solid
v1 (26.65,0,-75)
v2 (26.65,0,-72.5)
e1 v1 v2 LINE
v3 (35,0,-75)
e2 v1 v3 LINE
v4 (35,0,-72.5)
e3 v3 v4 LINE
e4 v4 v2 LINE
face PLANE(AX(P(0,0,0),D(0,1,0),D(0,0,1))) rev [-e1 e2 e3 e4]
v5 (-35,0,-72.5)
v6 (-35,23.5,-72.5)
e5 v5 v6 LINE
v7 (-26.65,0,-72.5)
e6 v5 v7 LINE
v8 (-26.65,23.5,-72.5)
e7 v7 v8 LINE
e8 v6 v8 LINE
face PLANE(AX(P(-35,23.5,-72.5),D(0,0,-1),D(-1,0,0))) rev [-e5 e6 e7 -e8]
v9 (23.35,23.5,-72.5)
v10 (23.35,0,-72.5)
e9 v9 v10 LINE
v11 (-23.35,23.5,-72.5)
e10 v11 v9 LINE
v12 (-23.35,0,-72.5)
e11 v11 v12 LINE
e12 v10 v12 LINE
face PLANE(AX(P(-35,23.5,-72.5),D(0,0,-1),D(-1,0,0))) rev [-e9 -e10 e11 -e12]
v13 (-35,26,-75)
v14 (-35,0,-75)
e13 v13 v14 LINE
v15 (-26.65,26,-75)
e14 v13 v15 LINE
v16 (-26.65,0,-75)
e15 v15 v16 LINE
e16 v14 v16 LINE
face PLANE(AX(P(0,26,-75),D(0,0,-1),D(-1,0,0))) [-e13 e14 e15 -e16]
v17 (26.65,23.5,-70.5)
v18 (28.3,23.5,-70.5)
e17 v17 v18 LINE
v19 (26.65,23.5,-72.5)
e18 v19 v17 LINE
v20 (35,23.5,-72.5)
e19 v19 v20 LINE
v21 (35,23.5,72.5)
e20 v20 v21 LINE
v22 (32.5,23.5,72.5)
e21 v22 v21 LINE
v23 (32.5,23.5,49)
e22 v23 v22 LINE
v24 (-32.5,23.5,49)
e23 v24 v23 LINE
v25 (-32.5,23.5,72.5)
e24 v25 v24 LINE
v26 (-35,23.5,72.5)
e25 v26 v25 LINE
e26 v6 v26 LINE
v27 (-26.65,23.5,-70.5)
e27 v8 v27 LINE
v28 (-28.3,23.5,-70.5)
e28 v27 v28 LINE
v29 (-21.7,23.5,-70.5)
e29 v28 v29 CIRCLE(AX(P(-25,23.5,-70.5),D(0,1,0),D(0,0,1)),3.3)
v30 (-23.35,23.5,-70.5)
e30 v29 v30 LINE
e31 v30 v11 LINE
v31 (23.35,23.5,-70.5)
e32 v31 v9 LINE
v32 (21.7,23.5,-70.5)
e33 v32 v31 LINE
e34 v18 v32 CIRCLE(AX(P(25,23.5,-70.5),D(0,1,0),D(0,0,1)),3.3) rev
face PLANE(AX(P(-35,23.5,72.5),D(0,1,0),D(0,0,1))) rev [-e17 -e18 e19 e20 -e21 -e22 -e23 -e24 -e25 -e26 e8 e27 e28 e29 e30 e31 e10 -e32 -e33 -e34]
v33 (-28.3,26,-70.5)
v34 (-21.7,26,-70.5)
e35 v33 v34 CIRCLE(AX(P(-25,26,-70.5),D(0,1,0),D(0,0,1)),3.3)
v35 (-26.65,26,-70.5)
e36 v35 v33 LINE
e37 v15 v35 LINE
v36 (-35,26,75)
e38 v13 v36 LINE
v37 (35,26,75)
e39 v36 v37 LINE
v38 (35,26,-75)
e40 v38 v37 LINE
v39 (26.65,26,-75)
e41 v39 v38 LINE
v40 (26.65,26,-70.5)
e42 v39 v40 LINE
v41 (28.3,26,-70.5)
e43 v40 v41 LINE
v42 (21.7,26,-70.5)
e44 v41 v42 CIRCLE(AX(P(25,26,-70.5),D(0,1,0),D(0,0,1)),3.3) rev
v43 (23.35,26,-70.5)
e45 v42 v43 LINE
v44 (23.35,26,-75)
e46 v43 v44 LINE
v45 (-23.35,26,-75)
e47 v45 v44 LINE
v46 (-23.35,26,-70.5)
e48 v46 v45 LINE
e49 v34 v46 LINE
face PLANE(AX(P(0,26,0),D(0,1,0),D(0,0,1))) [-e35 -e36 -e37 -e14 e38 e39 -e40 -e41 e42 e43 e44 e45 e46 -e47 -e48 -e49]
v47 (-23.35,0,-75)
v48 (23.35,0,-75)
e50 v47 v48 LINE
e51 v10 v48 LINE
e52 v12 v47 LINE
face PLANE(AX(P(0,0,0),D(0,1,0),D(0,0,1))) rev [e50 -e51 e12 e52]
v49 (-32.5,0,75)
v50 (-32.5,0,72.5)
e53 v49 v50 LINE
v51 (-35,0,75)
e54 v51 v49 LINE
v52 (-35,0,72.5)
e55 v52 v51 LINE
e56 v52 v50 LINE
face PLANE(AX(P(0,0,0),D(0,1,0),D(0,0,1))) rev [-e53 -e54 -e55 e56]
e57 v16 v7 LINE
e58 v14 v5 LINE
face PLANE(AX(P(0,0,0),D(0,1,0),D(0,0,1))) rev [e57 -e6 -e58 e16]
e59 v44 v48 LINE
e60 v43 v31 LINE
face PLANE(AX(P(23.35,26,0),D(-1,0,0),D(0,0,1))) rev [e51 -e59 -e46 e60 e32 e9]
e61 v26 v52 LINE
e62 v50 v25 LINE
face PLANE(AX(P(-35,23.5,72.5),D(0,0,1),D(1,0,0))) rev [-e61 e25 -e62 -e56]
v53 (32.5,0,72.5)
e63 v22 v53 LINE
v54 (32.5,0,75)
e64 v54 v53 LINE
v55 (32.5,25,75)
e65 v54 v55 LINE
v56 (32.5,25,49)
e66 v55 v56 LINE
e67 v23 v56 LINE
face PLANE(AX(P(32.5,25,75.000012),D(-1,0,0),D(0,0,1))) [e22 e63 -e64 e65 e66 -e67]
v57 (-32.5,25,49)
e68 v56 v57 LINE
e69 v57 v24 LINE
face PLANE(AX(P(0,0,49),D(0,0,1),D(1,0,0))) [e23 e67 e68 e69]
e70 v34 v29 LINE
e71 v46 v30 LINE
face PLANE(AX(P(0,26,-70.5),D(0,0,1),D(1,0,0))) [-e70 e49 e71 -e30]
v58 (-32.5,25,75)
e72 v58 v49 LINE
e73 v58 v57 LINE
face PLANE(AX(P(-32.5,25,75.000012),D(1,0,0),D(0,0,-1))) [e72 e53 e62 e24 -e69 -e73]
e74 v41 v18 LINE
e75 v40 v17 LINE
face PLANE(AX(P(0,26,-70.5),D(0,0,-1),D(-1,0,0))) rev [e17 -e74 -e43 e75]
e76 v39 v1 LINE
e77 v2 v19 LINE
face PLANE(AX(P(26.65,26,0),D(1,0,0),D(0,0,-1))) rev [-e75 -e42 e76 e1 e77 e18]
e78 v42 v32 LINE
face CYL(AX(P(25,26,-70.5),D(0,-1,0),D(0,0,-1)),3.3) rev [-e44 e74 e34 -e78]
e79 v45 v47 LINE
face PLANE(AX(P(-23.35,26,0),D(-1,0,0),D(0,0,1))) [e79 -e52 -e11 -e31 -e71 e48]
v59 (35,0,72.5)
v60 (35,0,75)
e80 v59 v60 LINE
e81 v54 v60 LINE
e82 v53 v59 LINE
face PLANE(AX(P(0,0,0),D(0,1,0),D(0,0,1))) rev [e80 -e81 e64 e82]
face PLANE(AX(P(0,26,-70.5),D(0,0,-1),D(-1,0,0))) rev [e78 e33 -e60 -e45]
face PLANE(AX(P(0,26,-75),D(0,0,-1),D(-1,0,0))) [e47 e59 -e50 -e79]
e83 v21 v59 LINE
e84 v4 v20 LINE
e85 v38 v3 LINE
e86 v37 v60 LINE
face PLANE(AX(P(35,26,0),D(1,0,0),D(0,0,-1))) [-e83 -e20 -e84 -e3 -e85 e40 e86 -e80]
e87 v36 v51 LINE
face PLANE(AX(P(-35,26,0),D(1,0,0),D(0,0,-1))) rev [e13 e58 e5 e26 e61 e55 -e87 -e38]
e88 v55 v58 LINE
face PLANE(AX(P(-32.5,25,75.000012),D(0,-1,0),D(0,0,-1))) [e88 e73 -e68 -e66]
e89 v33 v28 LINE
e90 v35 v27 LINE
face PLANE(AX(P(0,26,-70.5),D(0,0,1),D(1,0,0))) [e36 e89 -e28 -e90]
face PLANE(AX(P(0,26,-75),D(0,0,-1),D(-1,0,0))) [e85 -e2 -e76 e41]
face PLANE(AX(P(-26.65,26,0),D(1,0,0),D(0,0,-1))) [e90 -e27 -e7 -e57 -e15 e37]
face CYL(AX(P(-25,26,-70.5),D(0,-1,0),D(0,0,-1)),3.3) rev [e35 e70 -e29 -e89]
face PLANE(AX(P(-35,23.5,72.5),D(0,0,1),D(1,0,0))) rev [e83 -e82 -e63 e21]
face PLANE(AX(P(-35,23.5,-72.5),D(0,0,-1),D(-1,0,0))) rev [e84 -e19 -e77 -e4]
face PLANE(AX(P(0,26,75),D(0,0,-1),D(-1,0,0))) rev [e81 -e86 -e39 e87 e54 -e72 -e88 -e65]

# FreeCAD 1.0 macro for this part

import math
import FreeCAD as App
import Part
import Sketcher

V = App.Vector
Q = App.Units.Quantity

doc = App.newDocument("Part")
body = doc.addObject("PartDesign::Body", "Body")

sketch1 = body.newObject("Sketcher::SketchObject", "Sketch")
sketch1.AttachmentSupport = (doc.getObject("XZ_Plane"), [""])
sketch1.MapMode = "FlatFace"
sketch1.addGeometry(Part.LineSegment(V(-26.65, -70.5, 0), V(-26.65, -75, 0)), False)
sketch1.addGeometry(Part.LineSegment(V(-26.65, -75, 0), V(-35, -75, 0)), False)
sketch1.addGeometry(Part.LineSegment(V(-35, -75, 0), V(-35, 75, 0)), False)
sketch1.addGeometry(Part.LineSegment(V(-35, 75, 0), V(35, 75, 0)), False)
sketch1.addGeometry(Part.LineSegment(V(35, 75, 0), V(35, -75, 0)), False)
sketch1.addGeometry(Part.LineSegment(V(35, -75, 0), V(26.65, -75, 0)), False)
sketch1.addGeometry(Part.LineSegment(V(26.65, -75, 0), V(26.65, -70.5, 0)), False)
sketch1.addGeometry(Part.LineSegment(V(26.65, -70.5, 0), V(28.3, -70.5, 0)), False)
sketch1.addGeometry(Part.ArcOfCircle(Part.Circle(V(25, -70.5, 0), V(0, 0, 1), 3.3), math.radians(0), math.radians(180)), False)
sketch1.addGeometry(Part.LineSegment(V(21.7, -70.5, 0), V(23.35, -70.5, 0)), False)
sketch1.addGeometry(Part.LineSegment(V(23.35, -70.5, 0), V(23.35, -75, 0)), False)
sketch1.addGeometry(Part.LineSegment(V(23.35, -75, 0), V(-23.35, -75, 0)), False)
sketch1.addGeometry(Part.LineSegment(V(-23.35, -75, 0), V(-23.35, -70.5, 0)), False)
sketch1.addGeometry(Part.LineSegment(V(-23.35, -70.5, 0), V(-21.7, -70.5, 0)), False)
sketch1.addGeometry(Part.ArcOfCircle(Part.Circle(V(-25, -70.5, 0), V(0, 0, 1), 3.3), math.radians(0), math.radians(180)), False)
sketch1.addGeometry(Part.LineSegment(V(-28.3, -70.5, 0), V(-26.65, -70.5, 0)), False)
sketch1.addConstraint(Sketcher.Constraint("Coincident", 0, 2, 1, 1))
sketch1.addConstraint(Sketcher.Constraint("Coincident", 1, 2, 2, 1))
sketch1.addConstraint(Sketcher.Constraint("Coincident", 2, 2, 3, 1))
sketch1.addConstraint(Sketcher.Constraint("Coincident", 3, 2, 4, 1))
sketch1.addConstraint(Sketcher.Constraint("Coincident", 4, 2, 5, 1))
sketch1.addConstraint(Sketcher.Constraint("Coincident", 5, 2, 6, 1))
sketch1.addConstraint(Sketcher.Constraint("Coincident", 6, 2, 7, 1))
sketch1.addConstraint(Sketcher.Constraint("Coincident", 7, 2, 8, 1))
sketch1.addConstraint(Sketcher.Constraint("Coincident", 8, 2, 9, 1))
sketch1.addConstraint(Sketcher.Constraint("Coincident", 9, 2, 10, 1))
sketch1.addConstraint(Sketcher.Constraint("Coincident", 10, 2, 11, 1))
sketch1.addConstraint(Sketcher.Constraint("Coincident", 11, 2, 12, 1))
sketch1.addConstraint(Sketcher.Constraint("Coincident", 12, 2, 13, 1))
sketch1.addConstraint(Sketcher.Constraint("Coincident", 13, 2, 14, 1))
sketch1.addConstraint(Sketcher.Constraint("Coincident", 14, 2, 15, 1))
sketch1.addConstraint(Sketcher.Constraint("Coincident", 15, 2, 0, 1))
sketch1.addConstraint(Sketcher.Constraint("Vertical", 0))
sketch1.addConstraint(Sketcher.Constraint("Horizontal", 1))
sketch1.addConstraint(Sketcher.Constraint("Vertical", 2))
sketch1.addConstraint(Sketcher.Constraint("Horizontal", 3))
sketch1.addConstraint(Sketcher.Constraint("Vertical", 4))
sketch1.addConstraint(Sketcher.Constraint("Horizontal", 5))
sketch1.addConstraint(Sketcher.Constraint("Vertical", 6))
sketch1.addConstraint(Sketcher.Constraint("Horizontal", 7))
sketch1.addConstraint(Sketcher.Constraint("Horizontal", 9))
sketch1.addConstraint(Sketcher.Constraint("Vertical", 10))
sketch1.addConstraint(Sketcher.Constraint("Horizontal", 11))
sketch1.addConstraint(Sketcher.Constraint("Vertical", 12))
sketch1.addConstraint(Sketcher.Constraint("Horizontal", 13))
sketch1.addConstraint(Sketcher.Constraint("Horizontal", 15))
sketch1.addConstraint(Sketcher.Constraint("Equal", 8, 14))
sketch1.addConstraint(Sketcher.Constraint("Symmetric", 1, 2, 3, 2, -1, 1))
sketch1.addConstraint(Sketcher.Constraint("Symmetric", 8, 3, 14, 3, -2))
sketch1.addConstraint(Sketcher.Constraint("Symmetric", 0, 2, 5, 2, -2))
sketch1.addConstraint(Sketcher.Constraint("Symmetric", 9, 2, 12, 2, -2))
sketch1.addConstraint(Sketcher.Constraint("Horizontal", 14, 3, 6, 2))
sketch1.addConstraint(Sketcher.Constraint("Horizontal", 7, 2, 8, 2))
sketch1.addConstraint(Sketcher.Constraint("Horizontal", 5, 2, 10, 2))
sketch1.addConstraint(Sketcher.Constraint("Horizontal", 13, 2, 14, 2))
sketch1.addConstraint(Sketcher.Constraint("Equal", 7, 9))
sketch1.addConstraint(Sketcher.Constraint("Radius", 8, Q("3.3 mm")))
sketch1.addConstraint(Sketcher.Constraint("DistanceX", 3, 1, 3, 2, Q("70 mm")))
sketch1.addConstraint(Sketcher.Constraint("DistanceY", 2, 1, 2, 2, Q("150 mm")))
sketch1.addConstraint(Sketcher.Constraint("DistanceX", 11, 2, 11, 1, Q("46.7 mm")))
sketch1.addConstraint(Sketcher.Constraint("DistanceY", 0, 2, 0, 1, Q("4.5 mm")))
sketch1.addConstraint(Sketcher.Constraint("DistanceX", -1, 1, 8, 3, Q("25 mm")))
pad1 = body.newObject("PartDesign::Pad", "Pad")
pad1.Profile = sketch1
pad1.Length = 26
pad1.Reversed = True

sketch2 = body.newObject("Sketcher::SketchObject", "Sketch001")
sketch2.AttachmentSupport = (doc.getObject("YZ_Plane"), [""])
sketch2.MapMode = "FlatFace"
sketch2.AttachmentOffset = App.Placement(V(0, 0, 35), App.Rotation())
sketch2.addGeometry(Part.LineSegment(V(23.5, 72.5, 0), V(0, 72.5, 0)), False)
sketch2.addGeometry(Part.LineSegment(V(0, 72.5, 0), V(0, -72.5, 0)), False)
sketch2.addGeometry(Part.LineSegment(V(0, -72.5, 0), V(23.5, -72.5, 0)), False)
sketch2.addGeometry(Part.LineSegment(V(23.5, -72.5, 0), V(23.5, 72.5, 0)), False)
sketch2.addConstraint(Sketcher.Constraint("Coincident", 0, 2, 1, 1))
sketch2.addConstraint(Sketcher.Constraint("Coincident", 1, 2, 2, 1))
sketch2.addConstraint(Sketcher.Constraint("Coincident", 2, 2, 3, 1))
sketch2.addConstraint(Sketcher.Constraint("Coincident", 3, 2, 0, 1))
sketch2.addConstraint(Sketcher.Constraint("Horizontal", 0))
sketch2.addConstraint(Sketcher.Constraint("Vertical", 1))
sketch2.addConstraint(Sketcher.Constraint("Horizontal", 2))
sketch2.addConstraint(Sketcher.Constraint("Vertical", 3))
sketch2.addConstraint(Sketcher.Constraint("Symmetric", 0, 2, 1, 2, -1, 1))
sketch2.addConstraint(Sketcher.Constraint("DistanceY", 1, 2, 1, 1, Q("145 mm")))
sketch2.addConstraint(Sketcher.Constraint("DistanceX", 0, 2, 0, 1, Q("23.5 mm")))
pocket1 = body.newObject("PartDesign::Pocket", "Pocket")
pocket1.Profile = sketch2
pocket1.Type = "ThroughAll"
pocket1.Midplane = True

sketch3 = body.newObject("Sketcher::SketchObject", "Sketch002")
sketch3.AttachmentSupport = (doc.getObject("XY_Plane"), [""])
sketch3.MapMode = "FlatFace"
sketch3.AttachmentOffset = App.Placement(V(0, 0, 75), App.Rotation())
sketch3.addGeometry(Part.LineSegment(V(-32.5, 25, 0), V(-32.5, 0, 0)), False)
sketch3.addGeometry(Part.LineSegment(V(-32.5, 0, 0), V(32.5, 0, 0)), False)
sketch3.addGeometry(Part.LineSegment(V(32.5, 0, 0), V(32.5, 25, 0)), False)
sketch3.addGeometry(Part.LineSegment(V(32.5, 25, 0), V(-32.5, 25, 0)), False)
sketch3.addConstraint(Sketcher.Constraint("Coincident", 0, 2, 1, 1))
sketch3.addConstraint(Sketcher.Constraint("Coincident", 1, 2, 2, 1))
sketch3.addConstraint(Sketcher.Constraint("Coincident", 2, 2, 3, 1))
sketch3.addConstraint(Sketcher.Constraint("Coincident", 3, 2, 0, 1))
sketch3.addConstraint(Sketcher.Constraint("Vertical", 0))
sketch3.addConstraint(Sketcher.Constraint("Horizontal", 1))
sketch3.addConstraint(Sketcher.Constraint("Vertical", 2))
sketch3.addConstraint(Sketcher.Constraint("Horizontal", 3))
sketch3.addConstraint(Sketcher.Constraint("Symmetric", 0, 2, 1, 2, -1, 1))
sketch3.addConstraint(Sketcher.Constraint("DistanceX", 1, 1, 1, 2, Q("65 mm")))
sketch3.addConstraint(Sketcher.Constraint("DistanceY", 0, 2, 0, 1, Q("25 mm")))
pocket2 = body.newObject("PartDesign::Pocket", "Pocket001")
pocket2.Profile = sketch3
pocket2.Type = "TwoLengths"
pocket2.Length = 157.208194
pocket2.Length2 = 26
pocket2.Reversed = True

doc.recompute()
